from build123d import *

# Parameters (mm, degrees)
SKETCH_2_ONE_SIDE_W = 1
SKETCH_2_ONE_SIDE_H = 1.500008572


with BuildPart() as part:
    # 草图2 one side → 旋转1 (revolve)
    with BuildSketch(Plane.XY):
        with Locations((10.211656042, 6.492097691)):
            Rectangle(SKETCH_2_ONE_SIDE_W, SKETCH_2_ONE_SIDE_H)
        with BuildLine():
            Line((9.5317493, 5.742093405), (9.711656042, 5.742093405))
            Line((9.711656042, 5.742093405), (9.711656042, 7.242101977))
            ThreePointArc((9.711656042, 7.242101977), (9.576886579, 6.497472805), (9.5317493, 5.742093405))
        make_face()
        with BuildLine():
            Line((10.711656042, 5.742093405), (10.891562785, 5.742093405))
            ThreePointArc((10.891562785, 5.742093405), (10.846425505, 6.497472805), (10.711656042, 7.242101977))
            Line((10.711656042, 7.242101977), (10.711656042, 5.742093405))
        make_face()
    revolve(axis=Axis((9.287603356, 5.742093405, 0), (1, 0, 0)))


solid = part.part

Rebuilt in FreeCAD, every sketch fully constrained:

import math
import FreeCAD as App
import Part
import Sketcher

V = App.Vector

doc = App.newDocument("Part")
params = doc.addObject("Spreadsheet::Sheet", "Params")
for row, (alias, value) in enumerate([
    ("sketch1_width", "1 mm"),
    ("revolution_angle", "360 deg"),
], start=1):
    params.set(f"A{row}", alias)
    params.set(f"B{row}", "=" + value)
    params.setAlias(f"B{row}", alias)

body = doc.addObject("PartDesign::Body", "Body")

sketch1 = body.newObject("Sketcher::SketchObject", "Sketch")
sketch1.AttachmentSupport = (doc.getObject("XY_Plane"), [""])
sketch1.MapMode = "FlatFace"
sketch1.addGeometry(Part.LineSegment(V(10.7, 7.2, 0), V(9.7, 7.2, 0)), False)
sketch1.addGeometry(Part.ArcOfCircle(Part.Circle(V(15.9, 5.7, 0), V(0, 0, 1), 6.3), math.radians(166.32), math.radians(180)), False)
sketch1.addGeometry(Part.LineSegment(V(9.5, 5.7, 0), V(10.9, 5.7, 0)), False)
sketch1.addGeometry(Part.ArcOfCircle(Part.Circle(V(4.5, 5.7, 0), V(0, 0, 1), 6.3), math.radians(0), math.radians(13.68)), False)
sketch1.addGeometry(Part.LineSegment(V(4.5, 5.7, 0), V(15.9, 5.7, 0)), True)
sketch1.addConstraint(Sketcher.Constraint("Coincident", 0, 2, 1, 1))
sketch1.addConstraint(Sketcher.Constraint("Coincident", 1, 2, 2, 1))
sketch1.addConstraint(Sketcher.Constraint("Coincident", 2, 2, 3, 1))
sketch1.addConstraint(Sketcher.Constraint("Coincident", 3, 2, 0, 1))
sketch1.addConstraint(Sketcher.Constraint("Horizontal", 0))
sketch1.addConstraint(Sketcher.Constraint("Horizontal", 2))
sketch1.addConstraint(Sketcher.Constraint("Horizontal", 4))
sketch1.addConstraint(Sketcher.Constraint("Coincident", 4, 1, 3, 3))
sketch1.addConstraint(Sketcher.Constraint("Coincident", 4, 2, 1, 3))
sketch1.addConstraint(Sketcher.Constraint("Equal", 1, 3))
sketch1.addConstraint(Sketcher.Constraint("Horizontal", 3, 3, 1, 2))
sketch1.addConstraint(Sketcher.Constraint("DistanceX", 0, 2, 0, 1, 1.0))
sketch1.addConstraint(Sketcher.Constraint("Radius", 1, 6.343265))
sketch1.addConstraint(Sketcher.Constraint("DistanceX", -1, 1, 3, 3, 4.548298))
sketch1.addConstraint(Sketcher.Constraint("DistanceY", -1, 1, 0, 2, 7.242102))
sketch1.addConstraint(Sketcher.Constraint("DistanceX", 2, 1, 2, 2, 1.359813))
sketch1.setExpression("Constraints[11]", "Params.sketch1_width")
revolution = body.newObject("PartDesign::Revolution", "Revolution")
revolution.Profile = sketch1
revolution.ReferenceAxis = (sketch1, ["Axis0"])
revolution.setExpression("Angle", "Params.revolution_angle")

doc.recompute()
